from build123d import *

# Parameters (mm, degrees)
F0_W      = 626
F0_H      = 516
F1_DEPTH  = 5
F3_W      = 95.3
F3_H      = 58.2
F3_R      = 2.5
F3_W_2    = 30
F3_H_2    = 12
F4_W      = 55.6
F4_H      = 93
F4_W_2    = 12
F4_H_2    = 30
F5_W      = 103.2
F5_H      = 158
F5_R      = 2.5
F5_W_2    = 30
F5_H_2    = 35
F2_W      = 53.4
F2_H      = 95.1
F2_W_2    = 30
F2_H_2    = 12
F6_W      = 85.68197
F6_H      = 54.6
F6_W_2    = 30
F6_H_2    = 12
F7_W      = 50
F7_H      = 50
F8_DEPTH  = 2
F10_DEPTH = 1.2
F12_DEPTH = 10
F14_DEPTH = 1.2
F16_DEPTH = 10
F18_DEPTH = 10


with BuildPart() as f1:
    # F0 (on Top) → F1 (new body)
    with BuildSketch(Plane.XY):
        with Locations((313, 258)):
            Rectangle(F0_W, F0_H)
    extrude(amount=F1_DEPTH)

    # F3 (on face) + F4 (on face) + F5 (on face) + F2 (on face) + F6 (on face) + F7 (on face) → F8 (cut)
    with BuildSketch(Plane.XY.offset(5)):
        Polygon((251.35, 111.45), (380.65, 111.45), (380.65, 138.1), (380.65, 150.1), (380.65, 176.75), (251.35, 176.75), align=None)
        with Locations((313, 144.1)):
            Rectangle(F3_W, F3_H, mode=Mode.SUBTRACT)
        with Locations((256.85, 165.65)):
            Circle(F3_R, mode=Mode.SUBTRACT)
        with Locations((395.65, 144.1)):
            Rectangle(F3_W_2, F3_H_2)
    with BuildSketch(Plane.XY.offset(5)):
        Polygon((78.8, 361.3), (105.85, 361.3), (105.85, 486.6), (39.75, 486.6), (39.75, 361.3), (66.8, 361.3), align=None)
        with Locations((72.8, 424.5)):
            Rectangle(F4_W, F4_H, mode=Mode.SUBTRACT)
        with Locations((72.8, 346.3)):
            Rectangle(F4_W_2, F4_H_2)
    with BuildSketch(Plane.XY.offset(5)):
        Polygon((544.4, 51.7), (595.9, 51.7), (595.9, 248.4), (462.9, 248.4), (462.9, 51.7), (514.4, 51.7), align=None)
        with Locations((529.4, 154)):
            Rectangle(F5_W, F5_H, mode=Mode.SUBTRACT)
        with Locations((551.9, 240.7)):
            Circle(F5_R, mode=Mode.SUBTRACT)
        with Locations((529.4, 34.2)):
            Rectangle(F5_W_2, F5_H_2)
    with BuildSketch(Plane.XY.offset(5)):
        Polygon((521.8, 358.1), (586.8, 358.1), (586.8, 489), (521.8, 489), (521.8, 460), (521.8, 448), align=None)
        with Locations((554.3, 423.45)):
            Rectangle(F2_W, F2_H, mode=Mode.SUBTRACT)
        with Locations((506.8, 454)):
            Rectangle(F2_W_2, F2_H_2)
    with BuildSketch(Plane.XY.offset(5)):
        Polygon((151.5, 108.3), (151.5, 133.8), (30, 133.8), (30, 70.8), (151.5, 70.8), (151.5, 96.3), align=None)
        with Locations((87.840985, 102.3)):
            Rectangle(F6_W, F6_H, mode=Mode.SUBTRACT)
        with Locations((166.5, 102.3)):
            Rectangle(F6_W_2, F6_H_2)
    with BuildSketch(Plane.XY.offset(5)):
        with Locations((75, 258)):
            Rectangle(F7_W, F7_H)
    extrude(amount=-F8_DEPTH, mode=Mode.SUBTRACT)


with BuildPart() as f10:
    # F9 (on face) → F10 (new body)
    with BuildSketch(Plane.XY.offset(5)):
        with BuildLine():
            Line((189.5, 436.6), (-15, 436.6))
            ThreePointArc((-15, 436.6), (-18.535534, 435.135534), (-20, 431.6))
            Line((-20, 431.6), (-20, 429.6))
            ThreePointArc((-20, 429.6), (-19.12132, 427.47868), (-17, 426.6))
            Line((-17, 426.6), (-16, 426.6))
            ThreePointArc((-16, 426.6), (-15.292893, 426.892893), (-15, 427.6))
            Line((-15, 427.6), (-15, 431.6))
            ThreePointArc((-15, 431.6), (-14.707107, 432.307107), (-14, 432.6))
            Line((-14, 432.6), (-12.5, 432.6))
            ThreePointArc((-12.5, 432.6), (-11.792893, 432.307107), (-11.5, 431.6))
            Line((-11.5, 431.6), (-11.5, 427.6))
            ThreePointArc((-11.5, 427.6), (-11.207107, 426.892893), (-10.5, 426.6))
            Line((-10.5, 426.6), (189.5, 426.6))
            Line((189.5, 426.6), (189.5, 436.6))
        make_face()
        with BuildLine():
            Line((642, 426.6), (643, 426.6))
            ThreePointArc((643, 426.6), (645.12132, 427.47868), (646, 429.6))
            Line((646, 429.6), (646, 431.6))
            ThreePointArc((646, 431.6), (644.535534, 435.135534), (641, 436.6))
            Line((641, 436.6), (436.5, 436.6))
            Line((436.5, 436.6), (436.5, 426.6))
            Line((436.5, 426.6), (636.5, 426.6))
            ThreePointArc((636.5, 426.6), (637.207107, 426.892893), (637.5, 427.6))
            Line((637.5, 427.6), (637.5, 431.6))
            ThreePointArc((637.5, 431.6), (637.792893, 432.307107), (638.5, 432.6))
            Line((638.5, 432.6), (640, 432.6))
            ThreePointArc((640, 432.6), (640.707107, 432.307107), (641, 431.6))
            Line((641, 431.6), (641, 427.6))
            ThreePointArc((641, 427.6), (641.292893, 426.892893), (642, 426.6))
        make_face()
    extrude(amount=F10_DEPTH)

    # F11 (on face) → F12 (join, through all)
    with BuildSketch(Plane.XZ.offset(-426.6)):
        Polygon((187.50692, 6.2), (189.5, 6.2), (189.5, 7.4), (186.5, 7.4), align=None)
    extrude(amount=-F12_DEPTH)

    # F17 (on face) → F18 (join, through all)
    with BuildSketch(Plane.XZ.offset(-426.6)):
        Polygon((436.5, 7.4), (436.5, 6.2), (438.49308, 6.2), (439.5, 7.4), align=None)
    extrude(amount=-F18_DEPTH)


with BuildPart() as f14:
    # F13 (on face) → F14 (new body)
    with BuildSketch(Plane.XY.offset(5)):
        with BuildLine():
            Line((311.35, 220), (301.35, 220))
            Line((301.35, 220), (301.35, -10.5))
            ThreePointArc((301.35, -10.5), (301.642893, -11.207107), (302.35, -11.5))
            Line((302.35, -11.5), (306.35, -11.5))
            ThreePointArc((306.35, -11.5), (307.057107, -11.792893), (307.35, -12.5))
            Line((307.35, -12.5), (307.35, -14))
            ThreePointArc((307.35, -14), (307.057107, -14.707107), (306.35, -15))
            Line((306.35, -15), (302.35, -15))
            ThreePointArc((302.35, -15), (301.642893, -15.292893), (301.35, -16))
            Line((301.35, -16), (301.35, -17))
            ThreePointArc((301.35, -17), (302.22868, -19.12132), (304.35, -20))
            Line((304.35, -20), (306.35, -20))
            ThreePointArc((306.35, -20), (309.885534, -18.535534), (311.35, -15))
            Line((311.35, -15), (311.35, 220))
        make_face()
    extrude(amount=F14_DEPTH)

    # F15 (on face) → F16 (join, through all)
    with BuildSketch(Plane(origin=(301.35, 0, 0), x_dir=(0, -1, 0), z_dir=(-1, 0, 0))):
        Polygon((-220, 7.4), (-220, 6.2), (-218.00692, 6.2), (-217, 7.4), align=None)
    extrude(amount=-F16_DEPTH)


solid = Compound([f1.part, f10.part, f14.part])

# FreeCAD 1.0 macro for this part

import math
import FreeCAD as App
import Part
import Sketcher

V = App.Vector
Q = App.Units.Quantity


def add_polygon(sketch, points):
    """Adds a closed chain of lines whose ends are joined by coincident constraints."""
    first, n = sketch.GeometryCount, len(points)
    for a, b in zip(points, points[1:] + points[:1]):
        sketch.addGeometry(Part.LineSegment(App.Vector(*a, 0), App.Vector(*b, 0)), False)
    for i in range(n):
        sketch.addConstraint(Sketcher.Constraint("Coincident", first + i, 2, first + (i + 1) % n, 1))

doc = App.newDocument("Part")
params = doc.addObject("Spreadsheet::Sheet", "Params")
for row, (alias, value) in enumerate([
    ("sketch1_width", "626 mm"),
    ("sketch1_height", "516 mm"),
    ("pad1_length", "5 mm"),
    ("sketch2_diameter", "5 mm"),
    ("sketch2_width", "30 mm"),
    ("sketch2_width2", "12 mm"),
    ("sketch2_width3", "133 mm"),
    ("sketch2_width4", "65 mm"),
    ("pocket1_length", "2 mm"),
    ("sketch3_radius", "5 mm"),
    ("sketch3_radius2", "3.000001 mm"),
    ("sketch3_radius3", "0.999999 mm"),
    ("sketch3_width", "200 mm"),
    ("sketch3_height", "2 mm"),
    ("pad2_length", "1.2 mm"),
    ("sketch4_width", "3 mm"),
    ("sketch4_height", "1.2 mm"),
    ("pad3_length", "10 mm"),
    ("sketch5_width", "3 mm"),
    ("sketch5_height", "1.2 mm"),
    ("pad4_length", "10 mm"),
    ("sketch6_radius", "0.999999 mm"),
    ("sketch6_radius2", "3.000001 mm"),
    ("sketch6_radius3", "5 mm"),
    ("sketch6_width", "10 mm"),
    ("sketch6_height", "235 mm"),
    ("pad5_length", "1.2 mm"),
    ("sketch7_width", "3 mm"),
    ("sketch7_height", "1.2 mm"),
    ("pad6_length", "10 mm"),
], start=1):
    params.set(f"A{row}", alias)
    params.set(f"B{row}", "=" + value)
    params.setAlias(f"B{row}", alias)

body = doc.addObject("PartDesign::Body", "Body")

sketch1 = doc.addObject("Sketcher::SketchObject", "Sketch")
body.addObject(sketch1)
sketch1.AttachmentSupport = (doc.XY_Plane, [""])
sketch1.MapMode = "FlatFace"
add_polygon(sketch1, [(0, 516), (0, 0), (626, 0), (626, 516)])
sketch1.addConstraint([
    Sketcher.Constraint("Vertical", 0),
    Sketcher.Constraint("Horizontal", 1),
    Sketcher.Constraint("Vertical", 2),
    Sketcher.Constraint("Horizontal", 3),
    Sketcher.Constraint("Coincident", 0, 2, -1, 1),
    Sketcher.Constraint("DistanceX", 1, 1, 1, 2, 626.0),
    Sketcher.Constraint("DistanceY", 0, 2, 0, 1, 516.0),
])
sketch1.setExpression("Constraints[9]", "Params.sketch1_width")
sketch1.setExpression("Constraints[10]", "Params.sketch1_height")
pad1 = doc.addObject("PartDesign::Pad", "Pad")
body.addObject(pad1)
pad1.Profile = sketch1
pad1.setExpression("Length", "Params.pad1_length")

sketch2 = doc.addObject("Sketcher::SketchObject", "Sketch001")
body.addObject(sketch2)
sketch2.AttachmentSupport = (doc.XY_Plane, [""])
sketch2.MapMode = "FlatFace"
sketch2.AttachmentOffset = App.Placement(V(0, 0, 5), App.Rotation())
add_polygon(sketch2, [(251.3, 111.5), (380.6, 111.5), (380.6, 138.1), (410.6, 138.1), (410.6, 150.1), (380.6, 150.1), (380.6, 176.8), (251.3, 176.8)])
add_polygon(sketch2, [(360.6, 115), (265.4, 115), (265.4, 173.2), (360.6, 173.2)])
sketch2.addGeometry(Part.Circle(V(256.9, 165.7, 0), V(0, 0, 1), 2.5), False)
add_polygon(sketch2, [(105.8, 361.3), (105.8, 486.6), (39.8, 486.6), (39.8, 361.3), (66.8, 361.3), (66.8, 331.3), (78.8, 331.3), (78.8, 361.3)])
add_polygon(sketch2, [(100.6, 378), (45, 378), (45, 471), (100.6, 471)])
add_polygon(sketch2, [(595.9, 51.7), (595.9, 248.4), (462.9, 248.4), (462.9, 51.7), (514.4, 51.7), (514.4, 16.7), (544.4, 16.7), (544.4, 51.7)])
add_polygon(sketch2, [(581, 75), (477.8, 75), (477.8, 233), (581, 233)])
sketch2.addGeometry(Part.Circle(V(551.9, 240.7, 0), V(0, 0, 1), 2.5), False)
add_polygon(sketch2, [(521.8, 358.1), (586.8, 358.1), (586.8, 489), (521.8, 489), (521.8, 460), (491.8, 460), (491.8, 448), (521.8, 448)])
add_polygon(sketch2, [(581, 375.9), (527.6, 375.9), (527.6, 471), (581, 471)])
add_polygon(sketch2, [(151.5, 133.8), (30, 133.8), (30, 70.8), (151.5, 70.8), (151.5, 96.3), (181.5, 96.3), (181.5, 108.3), (151.5, 108.3)])
add_polygon(sketch2, [(130.7, 75), (45, 75), (45, 129.6), (130.7, 129.6)])
add_polygon(sketch2, [(50, 283), (50, 233), (100, 233), (100, 283)])
sketch2.addConstraint([
    Sketcher.Constraint("Horizontal", 0),
    Sketcher.Constraint("Vertical", 1),
    Sketcher.Constraint("Horizontal", 2),
    Sketcher.Constraint("Vertical", 3),
    Sketcher.Constraint("Horizontal", 4),
    Sketcher.Constraint("Vertical", 5),
    Sketcher.Constraint("Horizontal", 6),
    Sketcher.Constraint("Vertical", 7),
    Sketcher.Constraint("Horizontal", 8),
    Sketcher.Constraint("Vertical", 9),
    Sketcher.Constraint("Horizontal", 10),
    Sketcher.Constraint("Vertical", 11),
    Sketcher.Constraint("Vertical", 13),
    Sketcher.Constraint("Horizontal", 14),
    Sketcher.Constraint("Vertical", 15),
    Sketcher.Constraint("Horizontal", 16),
    Sketcher.Constraint("Vertical", 17),
    Sketcher.Constraint("Horizontal", 18),
    Sketcher.Constraint("Vertical", 19),
    Sketcher.Constraint("Horizontal", 20),
    Sketcher.Constraint("Horizontal", 21),
    Sketcher.Constraint("Vertical", 22),
    Sketcher.Constraint("Horizontal", 23),
    Sketcher.Constraint("Vertical", 24),
    Sketcher.Constraint("Vertical", 25),
    Sketcher.Constraint("Horizontal", 26),
    Sketcher.Constraint("Vertical", 27),
    Sketcher.Constraint("Horizontal", 28),
    Sketcher.Constraint("Vertical", 29),
    Sketcher.Constraint("Horizontal", 30),
    Sketcher.Constraint("Vertical", 31),
    Sketcher.Constraint("Horizontal", 32),
    Sketcher.Constraint("Horizontal", 33),
    Sketcher.Constraint("Vertical", 34),
    Sketcher.Constraint("Horizontal", 35),
    Sketcher.Constraint("Vertical", 36),
    Sketcher.Constraint("Horizontal", 38),
    Sketcher.Constraint("Vertical", 39),
    Sketcher.Constraint("Horizontal", 40),
    Sketcher.Constraint("Vertical", 41),
    Sketcher.Constraint("Horizontal", 42),
    Sketcher.Constraint("Vertical", 43),
    Sketcher.Constraint("Horizontal", 44),
    Sketcher.Constraint("Vertical", 45),
    Sketcher.Constraint("Horizontal", 46),
    Sketcher.Constraint("Vertical", 47),
    Sketcher.Constraint("Horizontal", 48),
    Sketcher.Constraint("Vertical", 49),
    Sketcher.Constraint("Horizontal", 50),
    Sketcher.Constraint("Vertical", 51),
    Sketcher.Constraint("Horizontal", 52),
    Sketcher.Constraint("Vertical", 53),
    Sketcher.Constraint("Horizontal", 54),
    Sketcher.Constraint("Vertical", 55),
    Sketcher.Constraint("Horizontal", 56),
    Sketcher.Constraint("Vertical", 57),
    Sketcher.Constraint("Horizontal", 58),
    Sketcher.Constraint("Vertical", 59),
    Sketcher.Constraint("Horizontal", 60),
    Sketcher.Constraint("Vertical", 61),
    Sketcher.Constraint("Vertical", 62),
    Sketcher.Constraint("Horizontal", 63),
    Sketcher.Constraint("Vertical", 64),
    Sketcher.Constraint("Horizontal", 65),
    Sketcher.Constraint("Equal", 12, 37),
    Sketcher.Constraint("Horizontal", 16, 2, 19, 2),
    Sketcher.Constraint("Horizontal", 28, 2, 31, 2),
    Sketcher.Constraint("Horizontal", 23, 2, 47, 2),
    Sketcher.Constraint("Horizontal", 36, 2, 58, 2),
    Sketcher.Constraint("Horizontal", 35, 2, 62, 2),
    Sketcher.Constraint("Vertical", 1, 2, 4, 2),
    Sketcher.Constraint("Vertical", 41, 2, 44, 2),
    Sketcher.Constraint("Vertical", 36, 2, 48, 2),
    Sketcher.Constraint("Vertical", 53, 2, 56, 2),
    Sketcher.Constraint("Vertical", 22, 2, 58, 2),
    Sketcher.Constraint("Equal", 16, 20),
    Sketcher.Constraint("Equal", 4, 30),
    Sketcher.Constraint("Equal", 28, 32),
    Sketcher.Constraint("Equal", 30, 42),
    Sketcher.Constraint("Equal", 44, 54),
    Sketcher.Constraint("Equal", 18, 3),
    Sketcher.Constraint("Equal", 1, 5),
    Sketcher.Constraint("Equal", 56, 17),
    Sketcher.Constraint("Equal", 3, 43),
    Sketcher.Constraint("Equal", 43, 55),
    Sketcher.Constraint("Equal", 53, 57),
    Sketcher.Constraint("Equal", 65, 62),
    Sketcher.Constraint("Diameter", 12, 5.0),
    Sketcher.Constraint("DistanceX", 2, 1, 2, 2, 30.0),
    Sketcher.Constraint("DistanceX", 18, 1, 18, 2, 12.0),
    Sketcher.Constraint("DistanceX", 26, 2, 26, 1, 133.0),
    Sketcher.Constraint("DistanceX", 38, 1, 38, 2, 65.0),
    Sketcher.Constraint("DistanceX", 63, 1, 63, 2, 50.0),
    Sketcher.Constraint("DistanceY", 22, 1, 22, 2, 93.0),
    Sketcher.Constraint("DistanceY", 29, 2, 29, 1, 35.0),
    Sketcher.Constraint("DistanceY", 34, 1, 34, 2, 158.0),
    Sketcher.Constraint("DistanceY", 41, 2, 41, 1, 29.0),
    Sketcher.Constraint("DistanceY", 51, 2, 51, 1, 63.0),
    Sketcher.Constraint("DistanceX", 0, 1, 0, 2, 129.3),
    Sketcher.Constraint("DistanceX", 8, 2, 8, 1, 95.3),
    Sketcher.Constraint("DistanceX", 14, 2, 14, 1, 66.1),
    Sketcher.Constraint("DistanceX", 21, 2, 21, 1, 55.6),
    Sketcher.Constraint("DistanceX", 33, 2, 33, 1, 103.2),
    Sketcher.Constraint("DistanceX", 46, 2, 46, 1, 53.4),
    Sketcher.Constraint("DistanceX", 50, 2, 50, 1, 121.5),
    Sketcher.Constraint("DistanceY", 7, 2, 7, 1, 65.3),
    Sketcher.Constraint("DistanceY", 9, 1, 9, 2, 58.2),
    Sketcher.Constraint("DistanceY", 13, 1, 13, 2, 125.3),
    Sketcher.Constraint("DistanceY", 25, 1, 25, 2, 196.7),
    Sketcher.Constraint("DistanceY", 39, 1, 39, 2, 130.9),
    Sketcher.Constraint("DistanceY", 47, 1, 47, 2, 95.1),
    Sketcher.Constraint("DistanceY", 59, 1, 59, 2, 54.6),
    Sketcher.Constraint("DistanceY", -1, 1, 8, 2, 115.0),
    Sketcher.Constraint("DistanceX", -1, 1, 21, 2, 45.0),
    Sketcher.Constraint("DistanceY", -1, 1, 21, 2, 378.0),
    Sketcher.Constraint("DistanceY", -1, 1, 33, 2, 75.0),
    Sketcher.Constraint("DistanceX", -1, 1, 35, 2, 581.0),
    Sketcher.Constraint("DistanceY", -1, 1, 39, 2, 489.0),
    Sketcher.Constraint("DistanceX", -1, 1, 50, 2, 30.0),
    Sketcher.Constraint("DistanceX", -1, 1, 62, 2, 50.0),
    Sketcher.Constraint("DistanceX", -1, 1, 37, 3, 551.9),
    Sketcher.Constraint("DistanceY", -1, 1, 37, 3, 240.7),
    Sketcher.Constraint("DistanceY", -1, 1, 1, 2, 138.1),
    Sketcher.Constraint("DistanceY", -1, 1, 13, 2, 486.6),
    Sketcher.Constraint("DistanceX", -1, 1, 16, 2, 66.8),
    Sketcher.Constraint("DistanceX", -1, 1, 25, 2, 595.9),
    Sketcher.Constraint("DistanceY", -1, 1, 25, 2, 248.4),
    Sketcher.Constraint("DistanceX", -1, 1, 38, 2, 586.8),
    Sketcher.Constraint("DistanceY", -1, 1, 50, 2, 133.8),
    Sketcher.Constraint("DistanceX", -1, 1, 12, 3, 256.85),
    Sketcher.Constraint("DistanceY", -1, 1, 12, 3, 165.65),
    Sketcher.Constraint("DistanceX", -1, 1, 0, 2, 380.65),
    Sketcher.Constraint("DistanceX", -1, 1, 8, 2, 265.35),
    Sketcher.Constraint("DistanceX", 58, 2, 58, 1, 85.68197),
])
sketch2.setExpression("Constraints[151]", "Params.sketch2_diameter")
sketch2.setExpression("Constraints[152]", "Params.sketch2_width")
sketch2.setExpression("Constraints[153]", "Params.sketch2_width2")
sketch2.setExpression("Constraints[154]", "Params.sketch2_width3")
sketch2.setExpression("Constraints[155]", "Params.sketch2_width4")
pocket1 = doc.addObject("PartDesign::Pocket", "Pocket")
body.addObject(pocket1)
pocket1.Profile = sketch2
pocket1.setExpression("Length", "Params.pocket1_length")
body2 = doc.addObject("PartDesign::Body", "Body001")
body2.AllowCompound = True

sketch3 = doc.addObject("Sketcher::SketchObject", "Sketch002")
body2.addObject(sketch3)
sketch3.AttachmentSupport = (doc.getObject("XY_Plane001"), [""])
sketch3.MapMode = "FlatFace"
sketch3.AttachmentOffset = App.Placement(V(0, 0, 5), App.Rotation())
sketch3.addGeometry([
    Part.LineSegment(V(189.5, 436.6, 0), V(-15, 436.6, 0)),
    Part.ArcOfCircle(Part.Circle(V(-15, 431.6, 0), V(0, 0, 1), 5), math.radians(90), math.radians(180)),
    Part.LineSegment(V(-20, 431.6, 0), V(-20, 429.6, 0)),
    Part.ArcOfCircle(Part.Circle(V(-17, 429.6, 0), V(0, 0, 1), 3), math.radians(-180), math.radians(-90)),
    Part.LineSegment(V(-17, 426.6, 0), V(-16, 426.6, 0)),
    Part.ArcOfCircle(Part.Circle(V(-16, 427.6, 0), V(0, 0, 1), 1), math.radians(-90), math.radians(0)),
    Part.LineSegment(V(-15, 427.6, 0), V(-15, 431.6, 0)),
    Part.ArcOfCircle(Part.Circle(V(-14, 431.6, 0), V(0, 0, 1), 1), math.radians(90), math.radians(180)),
    Part.LineSegment(V(-14, 432.6, 0), V(-12.5, 432.6, 0)),
    Part.ArcOfCircle(Part.Circle(V(-12.5, 431.6, 0), V(0, 0, 1), 1), math.radians(0), math.radians(90)),
    Part.LineSegment(V(-11.5, 431.6, 0), V(-11.5, 427.6, 0)),
    Part.ArcOfCircle(Part.Circle(V(-10.5, 427.6, 0), V(0, 0, 1), 1), math.radians(180), math.radians(270)),
    Part.LineSegment(V(-10.5, 426.6, 0), V(189.5, 426.6, 0)),
    Part.LineSegment(V(189.5, 426.6, 0), V(189.5, 436.6, 0)),
    Part.LineSegment(V(642, 426.6, 0), V(643, 426.6, 0)),
    Part.ArcOfCircle(Part.Circle(V(643, 429.6, 0), V(0, 0, 1), 3), math.radians(-90), math.radians(0)),
    Part.LineSegment(V(646, 429.6, 0), V(646, 431.6, 0)),
    Part.ArcOfCircle(Part.Circle(V(641, 431.6, 0), V(0, 0, 1), 5), math.radians(0), math.radians(90)),
    Part.LineSegment(V(641, 436.6, 0), V(436.5, 436.6, 0)),
    Part.LineSegment(V(436.5, 436.6, 0), V(436.5, 426.6, 0)),
    Part.LineSegment(V(436.5, 426.6, 0), V(636.5, 426.6, 0)),
    Part.ArcOfCircle(Part.Circle(V(636.5, 427.6, 0), V(0, 0, 1), 1), math.radians(-90), math.radians(0)),
    Part.LineSegment(V(637.5, 427.6, 0), V(637.5, 431.6, 0)),
    Part.ArcOfCircle(Part.Circle(V(638.5, 431.6, 0), V(0, 0, 1), 1), math.radians(90), math.radians(180)),
    Part.LineSegment(V(638.5, 432.6, 0), V(640, 432.6, 0)),
    Part.ArcOfCircle(Part.Circle(V(640, 431.6, 0), V(0, 0, 1), 1), math.radians(0), math.radians(90)),
    Part.LineSegment(V(641, 431.6, 0), V(641, 427.6, 0)),
    Part.ArcOfCircle(Part.Circle(V(642, 427.6, 0), V(0, 0, 1), 1), math.radians(180), math.radians(270)),
], False)
sketch3.addConstraint([
    Sketcher.Constraint("Tangent", 0, 2, 1, 1),
    Sketcher.Constraint("Tangent", 1, 2, 2, 1),
    Sketcher.Constraint("Tangent", 2, 2, 3, 1),
    Sketcher.Constraint("Tangent", 3, 2, 4, 1),
    Sketcher.Constraint("Tangent", 4, 2, 5, 1),
    Sketcher.Constraint("Tangent", 5, 2, 6, 1),
    Sketcher.Constraint("Tangent", 6, 2, 7, 2),
    Sketcher.Constraint("Tangent", 7, 1, 8, 1),
    Sketcher.Constraint("Tangent", 8, 2, 9, 2),
    Sketcher.Constraint("Tangent", 9, 1, 10, 1),
    Sketcher.Constraint("Tangent", 10, 2, 11, 1),
    Sketcher.Constraint("Tangent", 11, 2, 12, 1),
    Sketcher.Constraint("Coincident", 12, 2, 13, 1),
    Sketcher.Constraint("Coincident", 13, 2, 0, 1),
    Sketcher.Constraint("Tangent", 14, 2, 15, 1),
    Sketcher.Constraint("Tangent", 15, 2, 16, 1),
    Sketcher.Constraint("Tangent", 16, 2, 17, 1),
    Sketcher.Constraint("Tangent", 17, 2, 18, 1),
    Sketcher.Constraint("Coincident", 18, 2, 19, 1),
    Sketcher.Constraint("Coincident", 19, 2, 20, 1),
    Sketcher.Constraint("Tangent", 20, 2, 21, 1),
    Sketcher.Constraint("Tangent", 21, 2, 22, 1),
    Sketcher.Constraint("Tangent", 22, 2, 23, 2),
    Sketcher.Constraint("Tangent", 23, 1, 24, 1),
    Sketcher.Constraint("Tangent", 24, 2, 25, 2),
    Sketcher.Constraint("Tangent", 25, 1, 26, 1),
    Sketcher.Constraint("Tangent", 26, 2, 27, 1),
    Sketcher.Constraint("Tangent", 27, 2, 14, 1),
    Sketcher.Constraint("Horizontal", 0),
    Sketcher.Constraint("Vertical", 2),
    Sketcher.Constraint("Horizontal", 4),
    Sketcher.Constraint("Vertical", 6),
    Sketcher.Constraint("Horizontal", 8),
    Sketcher.Constraint("Vertical", 10),
    Sketcher.Constraint("Horizontal", 12),
    Sketcher.Constraint("Vertical", 13),
    Sketcher.Constraint("Horizontal", 14),
    Sketcher.Constraint("Vertical", 16),
    Sketcher.Constraint("Horizontal", 18),
    Sketcher.Constraint("Vertical", 19),
    Sketcher.Constraint("Horizontal", 20),
    Sketcher.Constraint("Vertical", 22),
    Sketcher.Constraint("Horizontal", 24),
    Sketcher.Constraint("Vertical", 26),
    Sketcher.Constraint("Coincident", 6, 2, 1, 3),
    Sketcher.Constraint("Coincident", 25, 1, 17, 3),
    Sketcher.Constraint("Equal", 5, 7),
    Sketcher.Constraint("Equal", 7, 9),
    Sketcher.Constraint("Equal", 9, 11),
    Sketcher.Constraint("Equal", 3, 15),
    Sketcher.Constraint("Equal", 1, 17),
    Sketcher.Constraint("Equal", 11, 21),
    Sketcher.Constraint("Equal", 21, 23),
    Sketcher.Constraint("Equal", 23, 25),
    Sketcher.Constraint("Equal", 25, 27),
    Sketcher.Constraint("Horizontal", 5, 3, 11, 3),
    Sketcher.Constraint("Horizontal", 3, 3, 15, 3),
    Sketcher.Constraint("Horizontal", 9, 3, 17, 3),
    Sketcher.Constraint("Horizontal", 11, 3, 21, 3),
    Sketcher.Constraint("Equal", 0, 18),
    Sketcher.Constraint("Equal", 12, 20),
    Sketcher.Constraint("Radius", 1, 5.0),
    Sketcher.Constraint("Radius", 3, 3.000001),
    Sketcher.Constraint("Radius", 5, 0.999999),
    Sketcher.Constraint("DistanceX", 12, 1, 12, 2, 200.0),
    Sketcher.Constraint("DistanceY", 2, 2, 2, 1, 2.0),
    Sketcher.Constraint("DistanceX", 0, 2, 0, 1, 204.5),
    Sketcher.Constraint("DistanceX", 1, 3, -1, 1, 15.0),
    Sketcher.Constraint("DistanceX", -1, 1, 15, 3, 642.999999),
    Sketcher.Constraint("DistanceY", -1, 1, 1, 3, 431.6),
])
sketch3.setExpression("Constraints[61]", "Params.sketch3_radius")
sketch3.setExpression("Constraints[62]", "Params.sketch3_radius2")
sketch3.setExpression("Constraints[63]", "Params.sketch3_radius3")
sketch3.setExpression("Constraints[64]", "Params.sketch3_width")
sketch3.setExpression("Constraints[65]", "Params.sketch3_height")
pad2 = doc.addObject("PartDesign::Pad", "Pad001")
body2.addObject(pad2)
pad2.Profile = sketch3
pad2.setExpression("Length", "Params.pad2_length")

sketch4 = doc.addObject("Sketcher::SketchObject", "Sketch003")
body2.addObject(sketch4)
sketch4.AttachmentSupport = (doc.getObject("XZ_Plane001"), [""])
sketch4.MapMode = "FlatFace"
sketch4.AttachmentOffset = App.Placement(V(0, 0, -426.6), App.Rotation())
add_polygon(sketch4, [(187.5, 6.2), (189.5, 6.2), (189.5, 7.4), (186.5, 7.4)])
sketch4.addConstraint([
    Sketcher.Constraint("Horizontal", 0),
    Sketcher.Constraint("Vertical", 1),
    Sketcher.Constraint("Horizontal", 2),
    Sketcher.Constraint("DistanceX", 2, 2, 2, 1, 3.0),
    Sketcher.Constraint("Angle", 3, Q("-49.999988 deg")),
    Sketcher.Constraint("DistanceY", 1, 1, 1, 2, 1.2),
    Sketcher.Constraint("DistanceX", -1, 1, 0, 2, 189.5),
    Sketcher.Constraint("DistanceY", -1, 1, 0, 2, 6.2),
])
sketch4.setExpression("Constraints[7]", "Params.sketch4_width")
sketch4.setExpression("Constraints[9]", "Params.sketch4_height")
pad3 = doc.addObject("PartDesign::Pad", "Pad002")
body2.addObject(pad3)
pad3.Profile = sketch4
pad3.setExpression("Length", "Params.pad3_length")
pad3.Reversed = True

sketch5 = doc.addObject("Sketcher::SketchObject", "Sketch004")
body2.addObject(sketch5)
sketch5.AttachmentSupport = (doc.getObject("XZ_Plane001"), [""])
sketch5.MapMode = "FlatFace"
sketch5.AttachmentOffset = App.Placement(V(0, 0, -426.6), App.Rotation())
add_polygon(sketch5, [(436.5, 7.4), (436.5, 6.2), (438.5, 6.2), (439.5, 7.4)])
sketch5.addConstraint([
    Sketcher.Constraint("Vertical", 0),
    Sketcher.Constraint("Horizontal", 1),
    Sketcher.Constraint("Horizontal", 3),
    Sketcher.Constraint("DistanceX", 3, 2, 3, 1, 3.0),
    Sketcher.Constraint("Angle", 2, Q("49.999988 deg")),
    Sketcher.Constraint("DistanceY", 0, 2, 0, 1, 1.2),
    Sketcher.Constraint("DistanceX", -1, 1, 0, 2, 436.5),
    Sketcher.Constraint("DistanceY", -1, 1, 0, 2, 6.2),
])
sketch5.setExpression("Constraints[7]", "Params.sketch5_width")
sketch5.setExpression("Constraints[9]", "Params.sketch5_height")
pad4 = doc.addObject("PartDesign::Pad", "Pad003")
body2.addObject(pad4)
pad4.Profile = sketch5
pad4.setExpression("Length", "Params.pad4_length")
pad4.Reversed = True
body3 = doc.addObject("PartDesign::Body", "Body002")

sketch6 = doc.addObject("Sketcher::SketchObject", "Sketch005")
body3.addObject(sketch6)
sketch6.AttachmentSupport = (doc.getObject("XY_Plane002"), [""])
sketch6.MapMode = "FlatFace"
sketch6.AttachmentOffset = App.Placement(V(0, 0, 5), App.Rotation())
sketch6.addGeometry([
    Part.LineSegment(V(311.4, 220, 0), V(301.4, 220, 0)),
    Part.LineSegment(V(301.4, 220, 0), V(301.4, -10.5, 0)),
    Part.ArcOfCircle(Part.Circle(V(302.3, -10.5, 0), V(0, 0, 1), 1), math.radians(180), math.radians(270)),
    Part.LineSegment(V(302.4, -11.5, 0), V(306.4, -11.5, 0)),
    Part.ArcOfCircle(Part.Circle(V(306.4, -12.5, 0), V(0, 0, 1), 1), math.radians(0), math.radians(90)),
    Part.LineSegment(V(307.4, -12.5, 0), V(307.4, -14, 0)),
    Part.ArcOfCircle(Part.Circle(V(306.4, -14, 0), V(0, 0, 1), 1), math.radians(-90), math.radians(0)),
    Part.LineSegment(V(306.4, -15, 0), V(302.4, -15, 0)),
    Part.ArcOfCircle(Part.Circle(V(302.3, -16, 0), V(0, 0, 1), 1), math.radians(90), math.radians(180)),
    Part.LineSegment(V(301.4, -16, 0), V(301.4, -17, 0)),
    Part.ArcOfCircle(Part.Circle(V(304.4, -17, 0), V(0, 0, 1), 3), math.radians(-180), math.radians(-90)),
    Part.LineSegment(V(304.4, -20, 0), V(306.4, -20, 0)),
    Part.ArcOfCircle(Part.Circle(V(306.4, -15, 0), V(0, 0, 1), 5), math.radians(-90), math.radians(0)),
    Part.LineSegment(V(311.4, -15, 0), V(311.4, 220, 0)),
], False)
sketch6.addConstraint([
    Sketcher.Constraint("Coincident", 0, 2, 1, 1),
    Sketcher.Constraint("Tangent", 1, 2, 2, 1),
    Sketcher.Constraint("Tangent", 2, 2, 3, 1),
    Sketcher.Constraint("Tangent", 3, 2, 4, 2),
    Sketcher.Constraint("Tangent", 4, 1, 5, 1),
    Sketcher.Constraint("Tangent", 5, 2, 6, 2),
    Sketcher.Constraint("Tangent", 6, 1, 7, 1),
    Sketcher.Constraint("Tangent", 7, 2, 8, 1),
    Sketcher.Constraint("Tangent", 8, 2, 9, 1),
    Sketcher.Constraint("Tangent", 9, 2, 10, 1),
    Sketcher.Constraint("Tangent", 10, 2, 11, 1),
    Sketcher.Constraint("Tangent", 11, 2, 12, 1),
    Sketcher.Constraint("Tangent", 12, 2, 13, 1),
    Sketcher.Constraint("Coincident", 13, 2, 0, 1),
    Sketcher.Constraint("Horizontal", 0),
    Sketcher.Constraint("Vertical", 1),
    Sketcher.Constraint("Horizontal", 3),
    Sketcher.Constraint("Vertical", 5),
    Sketcher.Constraint("Horizontal", 7),
    Sketcher.Constraint("Vertical", 9),
    Sketcher.Constraint("Horizontal", 11),
    Sketcher.Constraint("Vertical", 13),
    Sketcher.Constraint("Coincident", 6, 1, 12, 3),
    Sketcher.Constraint("Equal", 2, 4),
    Sketcher.Constraint("Equal", 4, 6),
    Sketcher.Constraint("Equal", 6, 8),
    Sketcher.Constraint("Vertical", 2, 3, 8, 3),
    Sketcher.Constraint("Radius", 2, 0.999999),
    Sketcher.Constraint("Radius", 10, 3.000001),
    Sketcher.Constraint("Radius", 12, 5.0),
    Sketcher.Constraint("DistanceX", 0, 2, 0, 1, 10.0),
    Sketcher.Constraint("DistanceY", 13, 1, 13, 2, 235.0),
    Sketcher.Constraint("DistanceY", 1, 2, 1, 1, 230.5),
    Sketcher.Constraint("DistanceY", 6, 3, -1, 1, 14.000001),
    Sketcher.Constraint("DistanceX", -1, 1, 2, 3, 302.349999),
])
sketch6.setExpression("Constraints[27]", "Params.sketch6_radius")
sketch6.setExpression("Constraints[28]", "Params.sketch6_radius2")
sketch6.setExpression("Constraints[29]", "Params.sketch6_radius3")
sketch6.setExpression("Constraints[30]", "Params.sketch6_width")
sketch6.setExpression("Constraints[31]", "Params.sketch6_height")
pad5 = doc.addObject("PartDesign::Pad", "Pad004")
body3.addObject(pad5)
pad5.Profile = sketch6
pad5.setExpression("Length", "Params.pad5_length")

sketch7 = doc.addObject("Sketcher::SketchObject", "Sketch006")
body3.addObject(sketch7)
sketch7.AttachmentSupport = (doc.getObject("YZ_Plane002"), [""])
sketch7.MapMode = "FlatFace"
sketch7.AttachmentOffset = App.Placement(V(0, 0, 301.35), App.Rotation())
add_polygon(sketch7, [(220, 7.4), (220, 6.2), (218, 6.2), (217, 7.4)])
sketch7.addConstraint([
    Sketcher.Constraint("Vertical", 0),
    Sketcher.Constraint("Horizontal", 1),
    Sketcher.Constraint("Horizontal", 3),
    Sketcher.Constraint("DistanceX", 3, 1, 3, 2, 3.0),
    Sketcher.Constraint("Angle", 2, Q("130.000012 deg")),
    Sketcher.Constraint("DistanceY", 0, 2, 0, 1, 1.2),
    Sketcher.Constraint("DistanceX", -1, 1, 0, 2, 220.0),
    Sketcher.Constraint("DistanceY", -1, 1, 0, 2, 6.2),
])
sketch7.setExpression("Constraints[7]", "Params.sketch7_width")
sketch7.setExpression("Constraints[9]", "Params.sketch7_height")
pad6 = doc.addObject("PartDesign::Pad", "Pad005")
body3.addObject(pad6)
pad6.Profile = sketch7
pad6.setExpression("Length", "Params.pad6_length")

doc.recompute()
